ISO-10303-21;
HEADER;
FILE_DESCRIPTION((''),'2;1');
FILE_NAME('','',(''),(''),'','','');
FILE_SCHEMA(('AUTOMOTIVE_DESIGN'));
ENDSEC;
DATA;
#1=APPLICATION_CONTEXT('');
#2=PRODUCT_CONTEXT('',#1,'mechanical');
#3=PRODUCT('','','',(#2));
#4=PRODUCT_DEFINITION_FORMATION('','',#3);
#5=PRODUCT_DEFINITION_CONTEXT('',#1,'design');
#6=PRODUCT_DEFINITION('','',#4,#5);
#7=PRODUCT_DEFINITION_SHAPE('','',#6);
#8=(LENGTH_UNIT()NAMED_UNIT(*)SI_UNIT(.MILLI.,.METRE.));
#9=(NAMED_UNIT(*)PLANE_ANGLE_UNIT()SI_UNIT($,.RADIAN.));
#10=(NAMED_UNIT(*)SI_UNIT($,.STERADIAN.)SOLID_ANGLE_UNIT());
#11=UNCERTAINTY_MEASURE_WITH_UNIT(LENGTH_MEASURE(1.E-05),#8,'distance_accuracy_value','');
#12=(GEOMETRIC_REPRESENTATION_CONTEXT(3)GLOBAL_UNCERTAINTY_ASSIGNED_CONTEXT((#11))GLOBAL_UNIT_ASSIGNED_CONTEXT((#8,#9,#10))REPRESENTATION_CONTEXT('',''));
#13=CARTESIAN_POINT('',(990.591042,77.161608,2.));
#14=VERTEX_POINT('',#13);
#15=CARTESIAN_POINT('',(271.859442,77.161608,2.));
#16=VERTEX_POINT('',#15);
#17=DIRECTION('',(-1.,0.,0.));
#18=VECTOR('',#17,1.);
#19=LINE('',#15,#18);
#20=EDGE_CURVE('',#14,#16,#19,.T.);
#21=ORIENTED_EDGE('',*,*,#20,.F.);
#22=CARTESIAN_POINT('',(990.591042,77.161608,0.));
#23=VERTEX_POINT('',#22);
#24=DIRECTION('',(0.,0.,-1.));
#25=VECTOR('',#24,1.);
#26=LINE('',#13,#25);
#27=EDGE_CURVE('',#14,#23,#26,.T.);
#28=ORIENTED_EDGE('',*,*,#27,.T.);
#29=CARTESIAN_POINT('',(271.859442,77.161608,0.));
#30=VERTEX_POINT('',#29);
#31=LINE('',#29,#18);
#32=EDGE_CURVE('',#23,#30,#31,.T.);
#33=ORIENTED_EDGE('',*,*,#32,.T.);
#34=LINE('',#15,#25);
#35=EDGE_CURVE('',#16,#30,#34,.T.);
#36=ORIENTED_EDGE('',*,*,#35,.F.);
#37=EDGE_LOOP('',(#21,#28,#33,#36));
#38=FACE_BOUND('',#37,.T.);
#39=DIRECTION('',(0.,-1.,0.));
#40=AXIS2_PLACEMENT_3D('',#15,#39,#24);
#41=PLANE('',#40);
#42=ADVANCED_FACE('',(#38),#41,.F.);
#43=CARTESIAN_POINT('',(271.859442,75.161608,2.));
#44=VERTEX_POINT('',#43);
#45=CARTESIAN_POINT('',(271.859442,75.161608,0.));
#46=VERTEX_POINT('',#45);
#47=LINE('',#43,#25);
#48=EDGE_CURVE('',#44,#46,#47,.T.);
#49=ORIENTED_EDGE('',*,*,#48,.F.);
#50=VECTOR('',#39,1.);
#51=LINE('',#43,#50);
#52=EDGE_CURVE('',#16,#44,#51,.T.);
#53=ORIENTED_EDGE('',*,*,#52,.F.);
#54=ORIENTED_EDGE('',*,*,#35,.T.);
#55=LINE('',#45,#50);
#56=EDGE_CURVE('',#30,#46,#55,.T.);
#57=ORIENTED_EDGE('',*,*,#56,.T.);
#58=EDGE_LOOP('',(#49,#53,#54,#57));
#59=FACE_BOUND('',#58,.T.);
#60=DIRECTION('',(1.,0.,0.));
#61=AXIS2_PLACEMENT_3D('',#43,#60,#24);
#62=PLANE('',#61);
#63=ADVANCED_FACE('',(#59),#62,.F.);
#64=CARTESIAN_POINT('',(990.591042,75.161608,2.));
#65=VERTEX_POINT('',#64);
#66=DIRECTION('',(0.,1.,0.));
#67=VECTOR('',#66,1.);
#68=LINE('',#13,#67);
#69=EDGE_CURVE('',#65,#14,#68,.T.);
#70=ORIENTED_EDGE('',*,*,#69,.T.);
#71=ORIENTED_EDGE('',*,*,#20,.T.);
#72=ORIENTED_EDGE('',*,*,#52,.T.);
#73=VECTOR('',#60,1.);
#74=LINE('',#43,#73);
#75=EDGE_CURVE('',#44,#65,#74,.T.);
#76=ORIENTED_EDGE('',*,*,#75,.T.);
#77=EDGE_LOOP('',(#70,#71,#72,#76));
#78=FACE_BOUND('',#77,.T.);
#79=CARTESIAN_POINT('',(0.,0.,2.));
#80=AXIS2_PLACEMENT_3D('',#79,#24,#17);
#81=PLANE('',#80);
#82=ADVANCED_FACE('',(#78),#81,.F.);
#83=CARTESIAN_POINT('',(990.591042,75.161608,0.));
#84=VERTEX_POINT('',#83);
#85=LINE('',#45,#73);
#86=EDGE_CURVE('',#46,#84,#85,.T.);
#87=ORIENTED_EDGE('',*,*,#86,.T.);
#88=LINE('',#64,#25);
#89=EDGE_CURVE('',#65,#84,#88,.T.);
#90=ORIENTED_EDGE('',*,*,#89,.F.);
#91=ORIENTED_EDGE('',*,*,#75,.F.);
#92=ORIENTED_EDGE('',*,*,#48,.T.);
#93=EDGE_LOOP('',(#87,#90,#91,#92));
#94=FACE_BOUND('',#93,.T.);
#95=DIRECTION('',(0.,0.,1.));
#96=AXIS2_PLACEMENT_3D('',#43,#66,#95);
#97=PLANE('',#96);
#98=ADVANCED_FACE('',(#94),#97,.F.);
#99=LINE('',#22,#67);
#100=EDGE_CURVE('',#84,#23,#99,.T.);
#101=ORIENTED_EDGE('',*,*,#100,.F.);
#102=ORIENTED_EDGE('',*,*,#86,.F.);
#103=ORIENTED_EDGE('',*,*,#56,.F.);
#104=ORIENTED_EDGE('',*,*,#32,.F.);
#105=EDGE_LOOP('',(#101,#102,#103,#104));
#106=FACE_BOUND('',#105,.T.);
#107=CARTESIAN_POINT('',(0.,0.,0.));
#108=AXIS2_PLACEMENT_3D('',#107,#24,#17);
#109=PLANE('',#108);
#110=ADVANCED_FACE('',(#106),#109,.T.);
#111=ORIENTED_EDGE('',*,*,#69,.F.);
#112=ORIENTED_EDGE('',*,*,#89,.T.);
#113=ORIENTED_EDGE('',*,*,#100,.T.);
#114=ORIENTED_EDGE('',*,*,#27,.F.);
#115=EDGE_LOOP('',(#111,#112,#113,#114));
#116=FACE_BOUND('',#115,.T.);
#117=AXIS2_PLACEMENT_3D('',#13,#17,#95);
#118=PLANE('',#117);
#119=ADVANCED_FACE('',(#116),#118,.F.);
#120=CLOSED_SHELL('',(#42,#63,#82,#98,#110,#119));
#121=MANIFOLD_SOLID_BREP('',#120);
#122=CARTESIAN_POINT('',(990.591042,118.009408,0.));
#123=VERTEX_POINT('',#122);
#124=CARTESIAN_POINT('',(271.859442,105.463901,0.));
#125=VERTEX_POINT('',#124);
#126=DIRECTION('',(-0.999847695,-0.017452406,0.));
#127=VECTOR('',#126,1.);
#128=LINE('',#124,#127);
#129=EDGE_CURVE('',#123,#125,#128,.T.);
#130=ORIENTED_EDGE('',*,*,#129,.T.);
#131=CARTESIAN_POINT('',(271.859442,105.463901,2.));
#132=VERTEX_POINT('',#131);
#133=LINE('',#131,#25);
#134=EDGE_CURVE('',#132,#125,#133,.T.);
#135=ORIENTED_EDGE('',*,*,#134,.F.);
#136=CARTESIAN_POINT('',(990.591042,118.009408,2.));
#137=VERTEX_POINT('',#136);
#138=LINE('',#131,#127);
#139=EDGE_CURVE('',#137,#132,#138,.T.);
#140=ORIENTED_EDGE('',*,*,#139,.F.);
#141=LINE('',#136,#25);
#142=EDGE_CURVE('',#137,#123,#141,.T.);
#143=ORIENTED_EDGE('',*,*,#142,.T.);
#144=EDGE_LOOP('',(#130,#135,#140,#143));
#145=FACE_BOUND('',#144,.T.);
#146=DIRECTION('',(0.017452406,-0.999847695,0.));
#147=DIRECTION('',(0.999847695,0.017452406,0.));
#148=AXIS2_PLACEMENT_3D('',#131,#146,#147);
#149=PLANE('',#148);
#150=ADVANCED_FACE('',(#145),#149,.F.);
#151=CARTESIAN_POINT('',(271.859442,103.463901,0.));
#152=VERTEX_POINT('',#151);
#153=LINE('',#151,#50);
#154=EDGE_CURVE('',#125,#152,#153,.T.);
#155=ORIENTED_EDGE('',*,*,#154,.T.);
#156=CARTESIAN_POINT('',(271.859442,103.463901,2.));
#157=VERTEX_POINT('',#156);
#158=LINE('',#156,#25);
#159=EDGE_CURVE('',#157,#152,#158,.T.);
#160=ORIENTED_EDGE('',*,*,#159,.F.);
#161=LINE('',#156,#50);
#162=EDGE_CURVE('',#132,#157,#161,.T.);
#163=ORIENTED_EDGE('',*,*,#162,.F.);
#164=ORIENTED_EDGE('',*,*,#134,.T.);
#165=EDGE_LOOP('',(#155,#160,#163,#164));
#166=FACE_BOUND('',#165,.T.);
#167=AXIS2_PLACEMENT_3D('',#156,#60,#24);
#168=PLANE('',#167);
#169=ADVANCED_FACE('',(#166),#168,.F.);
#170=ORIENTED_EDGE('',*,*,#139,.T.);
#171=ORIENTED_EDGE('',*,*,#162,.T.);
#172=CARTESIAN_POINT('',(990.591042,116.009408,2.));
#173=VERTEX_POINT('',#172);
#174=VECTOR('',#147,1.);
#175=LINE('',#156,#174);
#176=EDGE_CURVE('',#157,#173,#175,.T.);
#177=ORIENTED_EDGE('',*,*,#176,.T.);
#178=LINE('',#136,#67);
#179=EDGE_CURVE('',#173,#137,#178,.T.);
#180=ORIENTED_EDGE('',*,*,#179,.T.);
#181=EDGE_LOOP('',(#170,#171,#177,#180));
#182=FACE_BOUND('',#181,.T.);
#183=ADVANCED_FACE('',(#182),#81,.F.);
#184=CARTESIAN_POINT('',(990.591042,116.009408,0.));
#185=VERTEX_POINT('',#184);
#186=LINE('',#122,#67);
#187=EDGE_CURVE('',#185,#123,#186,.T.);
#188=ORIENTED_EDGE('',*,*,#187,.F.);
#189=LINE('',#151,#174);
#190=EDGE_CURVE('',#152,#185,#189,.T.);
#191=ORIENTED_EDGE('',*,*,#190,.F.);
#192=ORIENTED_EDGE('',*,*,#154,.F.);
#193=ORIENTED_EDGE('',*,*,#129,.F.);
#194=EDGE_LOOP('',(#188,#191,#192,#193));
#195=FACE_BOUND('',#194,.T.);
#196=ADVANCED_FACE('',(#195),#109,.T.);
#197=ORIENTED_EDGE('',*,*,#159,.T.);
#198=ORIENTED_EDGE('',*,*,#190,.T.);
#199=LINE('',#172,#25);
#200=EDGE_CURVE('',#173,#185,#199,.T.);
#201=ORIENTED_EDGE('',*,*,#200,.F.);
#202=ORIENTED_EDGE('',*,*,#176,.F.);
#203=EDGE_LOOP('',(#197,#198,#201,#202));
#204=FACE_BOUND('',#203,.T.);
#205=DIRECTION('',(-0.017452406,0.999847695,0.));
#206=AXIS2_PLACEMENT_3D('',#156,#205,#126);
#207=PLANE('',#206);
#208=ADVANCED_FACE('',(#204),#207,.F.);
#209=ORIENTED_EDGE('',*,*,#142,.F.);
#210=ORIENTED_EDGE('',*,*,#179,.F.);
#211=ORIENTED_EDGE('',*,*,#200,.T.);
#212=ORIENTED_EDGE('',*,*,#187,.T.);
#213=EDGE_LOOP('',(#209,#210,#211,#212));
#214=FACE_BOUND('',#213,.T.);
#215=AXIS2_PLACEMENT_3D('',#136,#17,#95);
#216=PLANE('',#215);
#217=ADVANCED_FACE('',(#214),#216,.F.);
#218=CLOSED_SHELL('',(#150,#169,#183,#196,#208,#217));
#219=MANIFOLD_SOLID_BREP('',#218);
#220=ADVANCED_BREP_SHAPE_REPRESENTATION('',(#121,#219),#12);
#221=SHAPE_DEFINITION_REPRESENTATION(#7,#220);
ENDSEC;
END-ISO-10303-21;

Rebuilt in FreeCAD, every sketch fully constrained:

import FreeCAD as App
import Part
import Sketcher
Q = App.Units.Quantity


def add_polygon(sketch, points):
    """Adds a closed chain of lines whose ends are joined by coincident constraints."""
    first, n = sketch.GeometryCount, len(points)
    for a, b in zip(points, points[1:] + points[:1]):
        sketch.addGeometry(Part.LineSegment(App.Vector(*a, 0), App.Vector(*b, 0)), False)
    for i in range(n):
        sketch.addConstraint(Sketcher.Constraint("Coincident", first + i, 2, first + (i + 1) % n, 1))

doc = App.newDocument("Part")
params = doc.addObject("Spreadsheet::Sheet", "Params")
for row, (alias, value) in enumerate([
    ("sketch1_height", "2 mm"),
    ("pad1_length", "2 mm"),
    ("sketch2_height", "2 mm"),
    ("pad2_length", "2 mm"),
], start=1):
    params.set(f"A{row}", alias)
    params.set(f"B{row}", "=" + value)
    params.setAlias(f"B{row}", alias)

body = doc.addObject("PartDesign::Body", "Body")

sketch1 = doc.addObject("Sketcher::SketchObject", "Sketch")
body.addObject(sketch1)
sketch1.AttachmentSupport = (doc.XY_Plane, [""])
sketch1.MapMode = "FlatFace"
add_polygon(sketch1, [(271.9, 77.2), (271.9, 75.2), (990.6, 75.2), (990.6, 77.2)])
sketch1.addConstraint([
    Sketcher.Constraint("Vertical", 0),
    Sketcher.Constraint("Horizontal", 1),
    Sketcher.Constraint("Vertical", 2),
    Sketcher.Constraint("Horizontal", 3),
    Sketcher.Constraint("DistanceY", 0, 2, 0, 1, Q("2 mm")),
    Sketcher.Constraint("DistanceX", 1, 1, 1, 2, Q("718.7316 mm")),
    Sketcher.Constraint("DistanceX", -1, 1, 0, 2, Q("271.859442 mm")),
    Sketcher.Constraint("DistanceY", -1, 1, 0, 2, Q("75.161608 mm")),
])
sketch1.setExpression("Constraints[8]", "Params.sketch1_height")
pad1 = doc.addObject("PartDesign::Pad", "Pad")
body.addObject(pad1)
pad1.Profile = sketch1
pad1.setExpression("Length", "Params.pad1_length")
body2 = doc.addObject("PartDesign::Body", "Body001")

sketch2 = doc.addObject("Sketcher::SketchObject", "Sketch001")
body2.addObject(sketch2)
sketch2.AttachmentSupport = (doc.getObject("XY_Plane001"), [""])
sketch2.MapMode = "FlatFace"
add_polygon(sketch2, [(271.9, 103.5), (990.6, 116), (990.6, 118), (271.9, 105.5)])
sketch2.addConstraint([
    Sketcher.Constraint("Vertical", 1),
    Sketcher.Constraint("Vertical", 3),
    Sketcher.Constraint("Parallel", 0, 2),
    Sketcher.Constraint("DistanceY", 1, 1, 1, 2, Q("2 mm")),
    Sketcher.Constraint("Angle", 0, Q("1 deg")),
    Sketcher.Constraint("DistanceY", -1, 1, 2, 2, Q("105.463901 mm")),
    Sketcher.Constraint("DistanceX", 2, 2, 0, 2, Q("718.7316 mm")),
    Sketcher.Constraint("DistanceX", -1, 1, 0, 2, Q("990.591042 mm")),
])
sketch2.setExpression("Constraints[7]", "Params.sketch2_height")
pad2 = doc.addObject("PartDesign::Pad", "Pad001")
body2.addObject(pad2)
pad2.Profile = sketch2
pad2.setExpression("Length", "Params.pad2_length")

doc.recompute()
